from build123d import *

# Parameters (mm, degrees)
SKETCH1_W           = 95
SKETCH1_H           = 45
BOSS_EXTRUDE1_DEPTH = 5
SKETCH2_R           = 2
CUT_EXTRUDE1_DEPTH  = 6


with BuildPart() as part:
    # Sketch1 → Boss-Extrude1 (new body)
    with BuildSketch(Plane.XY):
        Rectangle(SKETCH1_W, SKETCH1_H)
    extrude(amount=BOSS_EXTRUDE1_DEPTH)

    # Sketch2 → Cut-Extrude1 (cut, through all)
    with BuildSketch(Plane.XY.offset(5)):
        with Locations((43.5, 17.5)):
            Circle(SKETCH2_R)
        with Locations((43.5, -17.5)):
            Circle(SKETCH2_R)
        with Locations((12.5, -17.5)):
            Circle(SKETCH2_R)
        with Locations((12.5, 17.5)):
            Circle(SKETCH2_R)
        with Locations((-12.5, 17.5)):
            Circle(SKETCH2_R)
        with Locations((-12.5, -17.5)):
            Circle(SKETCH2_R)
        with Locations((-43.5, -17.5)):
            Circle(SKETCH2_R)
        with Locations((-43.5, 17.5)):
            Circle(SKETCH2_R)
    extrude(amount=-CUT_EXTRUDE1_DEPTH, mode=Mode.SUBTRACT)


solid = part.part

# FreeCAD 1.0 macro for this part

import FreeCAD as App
import Part
import Sketcher

V = App.Vector
Q = App.Units.Quantity

doc = App.newDocument("Part")
body = doc.addObject("PartDesign::Body", "Body")

sketch1 = doc.addObject("Sketcher::SketchObject", "Sketch")
body.addObject(sketch1)
sketch1.AttachmentSupport = (doc.XY_Plane, [""])
sketch1.MapMode = "FlatFace"
sketch1.addGeometry([
    Part.LineSegment(V(-48, 22, 0), V(-48, -22, 0)),
    Part.LineSegment(V(-48, -22, 0), V(48, -22, 0)),
    Part.LineSegment(V(48, -22, 0), V(48, 22, 0)),
    Part.LineSegment(V(48, 22, 0), V(-48, 22, 0)),
], False)
sketch1.addConstraint([
    Sketcher.Constraint("Coincident", 0, 2, 1, 1),
    Sketcher.Constraint("Coincident", 1, 2, 2, 1),
    Sketcher.Constraint("Coincident", 2, 2, 3, 1),
    Sketcher.Constraint("Coincident", 3, 2, 0, 1),
    Sketcher.Constraint("Vertical", 0),
    Sketcher.Constraint("Horizontal", 1),
    Sketcher.Constraint("Vertical", 2),
    Sketcher.Constraint("Horizontal", 3),
    Sketcher.Constraint("Symmetric", 0, 2, 2, 2, -1, 1),
    Sketcher.Constraint("DistanceX", 1, 1, 1, 2, Q("95 mm")),
    Sketcher.Constraint("DistanceY", 0, 2, 0, 1, Q("45 mm")),
])
pad1 = doc.addObject("PartDesign::Pad", "Pad")
body.addObject(pad1)
pad1.Profile = sketch1
pad1.Length = 5

sketch2 = doc.addObject("Sketcher::SketchObject", "Sketch001")
body.addObject(sketch2)
sketch2.AttachmentSupport = (doc.XY_Plane, [""])
sketch2.MapMode = "FlatFace"
sketch2.AttachmentOffset = App.Placement(V(0, 0, 5), App.Rotation())
sketch2.addGeometry([
    Part.Circle(V(43.5, 17.5, 0), V(0, 0, 1), 2),
    Part.Circle(V(43.5, -17.5, 0), V(0, 0, 1), 2),
    Part.Circle(V(12.5, -17.5, 0), V(0, 0, 1), 2),
    Part.Circle(V(12.5, 17.5, 0), V(0, 0, 1), 2),
    Part.Circle(V(-12.5, 17.5, 0), V(0, 0, 1), 2),
    Part.Circle(V(-12.5, -17.5, 0), V(0, 0, 1), 2),
    Part.Circle(V(-43.5, -17.5, 0), V(0, 0, 1), 2),
    Part.Circle(V(-43.5, 17.5, 0), V(0, 0, 1), 2),
], False)
sketch2.addConstraint([
    Sketcher.Constraint("Equal", 0, 1),
    Sketcher.Constraint("Equal", 1, 2),
    Sketcher.Constraint("Equal", 2, 3),
    Sketcher.Constraint("Equal", 3, 4),
    Sketcher.Constraint("Equal", 4, 5),
    Sketcher.Constraint("Equal", 5, 6),
    Sketcher.Constraint("Equal", 6, 7),
    Sketcher.Constraint("Symmetric", 2, 3, 4, 3, -1, 1),
    Sketcher.Constraint("Symmetric", 3, 3, 5, 3, -1, 1),
    Sketcher.Constraint("Symmetric", 0, 3, 6, 3, -1, 1),
    Sketcher.Constraint("Symmetric", 1, 3, 7, 3, -1, 1),
    Sketcher.Constraint("Symmetric", 3, 3, 4, 3, -2),
    Sketcher.Constraint("Symmetric", 1, 3, 6, 3, -2),
    Sketcher.Constraint("Horizontal", 1, 3, 2, 3),
    Sketcher.Constraint("Diameter", 0, Q("4 mm")),
    Sketcher.Constraint("DistanceY", 1, 3, 0, 3, Q("35 mm")),
    Sketcher.Constraint("DistanceX", 2, 3, 1, 3, Q("31 mm")),
    Sketcher.Constraint("DistanceX", 4, 3, 3, 3, Q("25 mm")),
])
pocket1 = doc.addObject("PartDesign::Pocket", "Pocket")
body.addObject(pocket1)
pocket1.Profile = sketch2
pocket1.Type = "ThroughAll"

doc.recompute()
